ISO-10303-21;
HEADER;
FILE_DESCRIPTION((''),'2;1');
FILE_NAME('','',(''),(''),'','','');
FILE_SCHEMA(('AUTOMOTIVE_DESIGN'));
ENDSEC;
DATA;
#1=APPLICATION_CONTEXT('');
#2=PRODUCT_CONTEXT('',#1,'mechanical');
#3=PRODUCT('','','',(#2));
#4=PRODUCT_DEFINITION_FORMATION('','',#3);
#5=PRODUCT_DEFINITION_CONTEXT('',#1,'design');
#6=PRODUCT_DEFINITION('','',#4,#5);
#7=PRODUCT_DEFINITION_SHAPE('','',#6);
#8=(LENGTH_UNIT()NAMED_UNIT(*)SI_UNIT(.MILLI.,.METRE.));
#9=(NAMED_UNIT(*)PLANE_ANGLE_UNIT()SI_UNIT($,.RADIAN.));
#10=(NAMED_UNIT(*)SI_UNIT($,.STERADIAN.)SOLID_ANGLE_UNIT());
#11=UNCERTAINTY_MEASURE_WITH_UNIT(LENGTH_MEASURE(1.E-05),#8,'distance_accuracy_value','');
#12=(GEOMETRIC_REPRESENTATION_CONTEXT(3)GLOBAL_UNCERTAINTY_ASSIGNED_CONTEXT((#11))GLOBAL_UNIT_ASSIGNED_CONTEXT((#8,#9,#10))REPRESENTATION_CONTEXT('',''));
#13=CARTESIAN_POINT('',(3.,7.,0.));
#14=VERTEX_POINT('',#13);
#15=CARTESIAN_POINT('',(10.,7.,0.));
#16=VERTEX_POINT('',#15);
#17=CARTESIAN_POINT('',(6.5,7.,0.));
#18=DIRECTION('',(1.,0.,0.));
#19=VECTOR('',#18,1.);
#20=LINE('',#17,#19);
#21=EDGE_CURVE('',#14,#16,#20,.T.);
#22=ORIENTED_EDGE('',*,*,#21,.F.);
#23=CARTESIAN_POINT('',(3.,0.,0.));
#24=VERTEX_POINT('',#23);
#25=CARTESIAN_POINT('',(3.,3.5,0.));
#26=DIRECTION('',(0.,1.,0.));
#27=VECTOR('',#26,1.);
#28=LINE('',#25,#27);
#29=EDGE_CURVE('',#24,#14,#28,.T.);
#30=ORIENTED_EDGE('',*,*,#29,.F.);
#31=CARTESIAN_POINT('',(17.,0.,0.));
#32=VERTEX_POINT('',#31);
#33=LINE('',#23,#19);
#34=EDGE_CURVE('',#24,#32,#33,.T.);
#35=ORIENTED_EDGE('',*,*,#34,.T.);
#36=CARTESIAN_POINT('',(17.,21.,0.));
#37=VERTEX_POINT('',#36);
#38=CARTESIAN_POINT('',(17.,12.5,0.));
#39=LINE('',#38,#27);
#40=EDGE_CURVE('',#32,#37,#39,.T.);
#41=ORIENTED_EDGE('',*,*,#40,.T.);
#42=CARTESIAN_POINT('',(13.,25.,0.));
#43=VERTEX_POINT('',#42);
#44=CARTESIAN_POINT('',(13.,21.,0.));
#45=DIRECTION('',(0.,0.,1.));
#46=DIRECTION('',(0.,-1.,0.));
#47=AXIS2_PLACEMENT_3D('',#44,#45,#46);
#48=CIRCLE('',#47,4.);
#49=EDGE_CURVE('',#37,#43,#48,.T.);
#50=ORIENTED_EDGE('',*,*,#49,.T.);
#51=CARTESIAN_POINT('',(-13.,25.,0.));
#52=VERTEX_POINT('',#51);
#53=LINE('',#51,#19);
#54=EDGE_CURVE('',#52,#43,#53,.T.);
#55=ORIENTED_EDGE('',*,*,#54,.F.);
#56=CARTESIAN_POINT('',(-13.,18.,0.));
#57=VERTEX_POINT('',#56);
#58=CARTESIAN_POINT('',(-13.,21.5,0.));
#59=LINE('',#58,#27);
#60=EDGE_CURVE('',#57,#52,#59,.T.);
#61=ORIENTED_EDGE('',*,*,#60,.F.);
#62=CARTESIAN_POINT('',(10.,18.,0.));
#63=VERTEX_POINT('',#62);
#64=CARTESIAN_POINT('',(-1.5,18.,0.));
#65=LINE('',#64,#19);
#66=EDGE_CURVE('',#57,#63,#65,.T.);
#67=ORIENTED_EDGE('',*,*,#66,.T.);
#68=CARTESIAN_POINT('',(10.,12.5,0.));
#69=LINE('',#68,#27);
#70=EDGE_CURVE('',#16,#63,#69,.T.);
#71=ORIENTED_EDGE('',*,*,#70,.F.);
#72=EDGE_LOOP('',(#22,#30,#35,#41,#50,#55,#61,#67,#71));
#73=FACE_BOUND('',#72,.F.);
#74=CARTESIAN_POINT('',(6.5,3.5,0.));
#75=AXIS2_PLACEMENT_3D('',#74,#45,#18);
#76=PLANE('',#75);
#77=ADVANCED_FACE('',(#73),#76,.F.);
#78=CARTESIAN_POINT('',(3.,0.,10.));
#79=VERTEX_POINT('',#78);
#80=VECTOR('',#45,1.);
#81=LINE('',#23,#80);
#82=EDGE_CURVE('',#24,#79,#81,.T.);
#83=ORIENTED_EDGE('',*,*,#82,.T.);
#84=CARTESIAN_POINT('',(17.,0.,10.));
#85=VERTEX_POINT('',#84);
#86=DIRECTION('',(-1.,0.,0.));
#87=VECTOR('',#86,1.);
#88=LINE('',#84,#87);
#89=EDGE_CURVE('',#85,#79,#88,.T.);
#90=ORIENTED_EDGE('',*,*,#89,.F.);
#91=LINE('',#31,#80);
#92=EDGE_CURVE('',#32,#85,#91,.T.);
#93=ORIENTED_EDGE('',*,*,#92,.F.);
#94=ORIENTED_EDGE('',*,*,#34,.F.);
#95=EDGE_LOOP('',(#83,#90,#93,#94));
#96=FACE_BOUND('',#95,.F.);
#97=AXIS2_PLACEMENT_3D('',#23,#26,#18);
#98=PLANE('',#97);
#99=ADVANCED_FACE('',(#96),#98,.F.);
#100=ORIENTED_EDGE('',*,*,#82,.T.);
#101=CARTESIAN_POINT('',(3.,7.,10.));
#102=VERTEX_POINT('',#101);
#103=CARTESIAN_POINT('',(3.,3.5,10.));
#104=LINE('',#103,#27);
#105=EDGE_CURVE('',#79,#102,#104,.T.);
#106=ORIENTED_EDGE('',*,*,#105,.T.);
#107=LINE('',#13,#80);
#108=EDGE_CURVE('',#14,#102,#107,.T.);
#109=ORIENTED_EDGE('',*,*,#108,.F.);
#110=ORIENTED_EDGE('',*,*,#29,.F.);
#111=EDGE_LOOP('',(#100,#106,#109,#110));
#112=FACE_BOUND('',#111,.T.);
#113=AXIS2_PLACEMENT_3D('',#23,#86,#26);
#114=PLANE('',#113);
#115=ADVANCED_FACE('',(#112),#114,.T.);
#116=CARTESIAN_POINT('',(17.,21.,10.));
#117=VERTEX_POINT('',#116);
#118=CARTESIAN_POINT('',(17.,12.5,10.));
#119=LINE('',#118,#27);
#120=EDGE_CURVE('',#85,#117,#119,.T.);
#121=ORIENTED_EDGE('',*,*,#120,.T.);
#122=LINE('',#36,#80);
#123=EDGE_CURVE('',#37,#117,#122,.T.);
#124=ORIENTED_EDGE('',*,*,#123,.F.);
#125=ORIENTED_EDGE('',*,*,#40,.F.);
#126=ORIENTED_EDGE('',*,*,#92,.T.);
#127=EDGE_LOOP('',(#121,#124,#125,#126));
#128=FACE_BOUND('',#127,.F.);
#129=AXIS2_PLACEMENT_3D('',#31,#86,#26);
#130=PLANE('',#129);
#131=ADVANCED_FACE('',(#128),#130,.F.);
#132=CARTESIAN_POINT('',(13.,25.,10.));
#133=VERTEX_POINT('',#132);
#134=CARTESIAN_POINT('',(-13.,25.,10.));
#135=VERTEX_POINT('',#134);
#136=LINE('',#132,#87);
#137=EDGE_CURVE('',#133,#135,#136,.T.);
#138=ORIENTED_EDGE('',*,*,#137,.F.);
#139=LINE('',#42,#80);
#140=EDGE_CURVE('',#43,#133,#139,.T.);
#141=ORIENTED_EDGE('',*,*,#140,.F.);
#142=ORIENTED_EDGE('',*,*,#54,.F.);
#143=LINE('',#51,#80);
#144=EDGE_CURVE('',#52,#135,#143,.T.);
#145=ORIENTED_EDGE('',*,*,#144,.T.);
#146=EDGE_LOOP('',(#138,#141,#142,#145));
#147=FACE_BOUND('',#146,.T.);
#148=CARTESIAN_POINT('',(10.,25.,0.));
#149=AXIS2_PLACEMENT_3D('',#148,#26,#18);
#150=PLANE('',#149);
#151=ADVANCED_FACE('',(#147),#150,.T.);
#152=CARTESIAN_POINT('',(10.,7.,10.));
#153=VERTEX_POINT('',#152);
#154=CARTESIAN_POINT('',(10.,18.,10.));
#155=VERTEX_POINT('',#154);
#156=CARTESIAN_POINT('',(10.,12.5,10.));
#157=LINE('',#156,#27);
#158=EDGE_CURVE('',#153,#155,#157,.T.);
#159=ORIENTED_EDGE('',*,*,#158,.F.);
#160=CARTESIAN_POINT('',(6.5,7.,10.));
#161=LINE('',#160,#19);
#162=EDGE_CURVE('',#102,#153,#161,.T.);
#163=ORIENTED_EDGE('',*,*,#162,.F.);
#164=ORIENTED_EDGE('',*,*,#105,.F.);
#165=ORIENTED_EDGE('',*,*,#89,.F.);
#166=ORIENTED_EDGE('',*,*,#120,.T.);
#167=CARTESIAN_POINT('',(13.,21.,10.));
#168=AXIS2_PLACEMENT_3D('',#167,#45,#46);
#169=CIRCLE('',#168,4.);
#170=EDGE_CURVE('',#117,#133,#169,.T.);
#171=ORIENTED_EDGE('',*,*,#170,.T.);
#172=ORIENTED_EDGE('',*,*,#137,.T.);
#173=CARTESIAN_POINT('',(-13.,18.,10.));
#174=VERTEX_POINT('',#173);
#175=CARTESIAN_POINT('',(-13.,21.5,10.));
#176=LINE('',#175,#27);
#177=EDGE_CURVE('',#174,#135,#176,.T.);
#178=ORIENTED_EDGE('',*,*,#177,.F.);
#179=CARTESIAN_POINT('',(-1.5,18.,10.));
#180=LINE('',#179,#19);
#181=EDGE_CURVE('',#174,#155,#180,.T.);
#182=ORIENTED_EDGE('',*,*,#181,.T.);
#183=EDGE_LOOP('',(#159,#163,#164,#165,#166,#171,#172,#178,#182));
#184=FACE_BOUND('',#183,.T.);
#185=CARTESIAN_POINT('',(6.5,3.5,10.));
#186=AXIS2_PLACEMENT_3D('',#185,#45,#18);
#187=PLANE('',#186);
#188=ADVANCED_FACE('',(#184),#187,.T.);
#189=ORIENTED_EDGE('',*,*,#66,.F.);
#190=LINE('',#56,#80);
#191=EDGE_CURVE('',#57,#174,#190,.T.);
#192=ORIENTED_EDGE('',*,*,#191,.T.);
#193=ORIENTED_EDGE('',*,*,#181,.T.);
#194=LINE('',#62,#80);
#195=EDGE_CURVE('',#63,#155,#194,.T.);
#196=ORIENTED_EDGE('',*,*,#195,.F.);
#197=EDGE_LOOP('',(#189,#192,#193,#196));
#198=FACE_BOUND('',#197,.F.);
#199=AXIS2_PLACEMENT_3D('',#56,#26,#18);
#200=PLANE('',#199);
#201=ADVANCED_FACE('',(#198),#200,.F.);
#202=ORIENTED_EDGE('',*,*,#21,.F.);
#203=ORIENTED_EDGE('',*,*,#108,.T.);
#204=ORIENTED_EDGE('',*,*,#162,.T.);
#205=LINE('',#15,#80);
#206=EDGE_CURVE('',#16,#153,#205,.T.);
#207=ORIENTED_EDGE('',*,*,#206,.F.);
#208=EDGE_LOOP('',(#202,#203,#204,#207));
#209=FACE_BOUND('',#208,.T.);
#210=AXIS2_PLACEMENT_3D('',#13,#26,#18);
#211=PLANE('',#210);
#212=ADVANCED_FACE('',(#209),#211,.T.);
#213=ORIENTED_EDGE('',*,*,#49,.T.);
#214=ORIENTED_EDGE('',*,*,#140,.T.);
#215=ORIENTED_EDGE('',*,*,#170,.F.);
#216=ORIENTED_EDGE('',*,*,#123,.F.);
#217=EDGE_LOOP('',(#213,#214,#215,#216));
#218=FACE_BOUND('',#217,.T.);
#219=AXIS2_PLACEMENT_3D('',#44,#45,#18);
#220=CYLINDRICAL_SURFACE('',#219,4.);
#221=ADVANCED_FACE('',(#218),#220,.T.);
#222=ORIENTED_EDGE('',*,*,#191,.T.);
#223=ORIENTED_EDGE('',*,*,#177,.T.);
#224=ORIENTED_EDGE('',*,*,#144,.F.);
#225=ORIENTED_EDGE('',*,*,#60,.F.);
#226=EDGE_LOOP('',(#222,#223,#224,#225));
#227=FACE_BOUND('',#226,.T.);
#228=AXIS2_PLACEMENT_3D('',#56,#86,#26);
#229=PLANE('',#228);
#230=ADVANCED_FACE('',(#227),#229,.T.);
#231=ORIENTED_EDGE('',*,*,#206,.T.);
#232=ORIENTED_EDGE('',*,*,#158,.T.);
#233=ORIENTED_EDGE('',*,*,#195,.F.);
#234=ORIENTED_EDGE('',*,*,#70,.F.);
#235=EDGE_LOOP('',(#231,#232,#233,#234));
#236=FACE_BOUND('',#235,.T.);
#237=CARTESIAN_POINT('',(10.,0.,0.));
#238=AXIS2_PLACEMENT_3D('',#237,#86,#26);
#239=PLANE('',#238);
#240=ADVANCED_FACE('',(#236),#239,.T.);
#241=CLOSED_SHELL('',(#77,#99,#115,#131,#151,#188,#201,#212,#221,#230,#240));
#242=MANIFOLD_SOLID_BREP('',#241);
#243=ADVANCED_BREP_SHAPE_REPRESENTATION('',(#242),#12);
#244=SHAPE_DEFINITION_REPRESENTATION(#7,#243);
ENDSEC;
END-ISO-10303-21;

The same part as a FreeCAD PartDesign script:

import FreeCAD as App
import Part
import Sketcher
from FreeCAD import Vector
Q = App.Units.Quantity


def edges_at(feature, points):
    """Names of the edges that pass closest to the given points."""
    edges = feature.Shape.Edges
    near = lambda p: min(range(len(edges)), key=lambda i: edges[i].distToShape(Part.Vertex(*p))[0])
    return sorted({f"Edge{near(p) + 1}" for p in points})

doc = App.newDocument("Part")
body = doc.addObject("PartDesign::Body", "Body")

# Sketch on XY plane
sketch1 = doc.addObject("Sketcher::SketchObject", "Sketch")
body.addObject(sketch1)
sketch1.AttachmentSupport = (doc.XY_Plane, [""])
sketch1.MapMode = "FlatFace"
sketch1.addGeometry([
    Part.LineSegment(Vector(10, 25, 0), Vector(10, 0, 0)),
    Part.LineSegment(Vector(10, 0, 0), Vector(17, 0, 0)),
    Part.LineSegment(Vector(17, 0, 0), Vector(17, 25, 0)),
    Part.LineSegment(Vector(17, 25, 0), Vector(10, 25, 0)),
], False)
sketch1.addConstraint([
    Sketcher.Constraint("Coincident", 0, 2, 1, 1),
    Sketcher.Constraint("Coincident", 1, 2, 2, 1),
    Sketcher.Constraint("Coincident", 2, 2, 3, 1),
    Sketcher.Constraint("Coincident", 3, 2, 0, 1),
    Sketcher.Constraint("Vertical", 0),
    Sketcher.Constraint("Horizontal", 1),
    Sketcher.Constraint("Vertical", 2),
    Sketcher.Constraint("Horizontal", 3),
    Sketcher.Constraint("PointOnObject", 0, 2, -1),
    Sketcher.Constraint("DistanceX", 1, 1, 1, 2, Q("7 mm")),
    Sketcher.Constraint("DistanceY", 0, 2, 0, 1, Q("25 mm")),
    Sketcher.Constraint("DistanceX", -1, 1, 0, 2, Q("10 mm")),
])
pad1 = doc.addObject("PartDesign::Pad", "Pad")
body.addObject(pad1)
pad1.Profile = sketch1
pad1.Length = 10
doc.recompute()

fillet = doc.addObject("PartDesign::Fillet", "Fillet")
body.addObject(fillet)
fillet.Base = (pad1, edges_at(pad1, [(17, 25, 5)]))
fillet.Radius = 4
body2 = doc.addObject("PartDesign::Body", "Body001")

# Sketch on XY plane
sketch2 = doc.addObject("Sketcher::SketchObject", "Sketch001")
body2.addObject(sketch2)
sketch2.AttachmentSupport = (doc.getObject("XY_Plane001"), [""])
sketch2.MapMode = "FlatFace"
sketch2.addGeometry([
    Part.LineSegment(Vector(3, 7, 0), Vector(3, 0, 0)),
    Part.LineSegment(Vector(3, 0, 0), Vector(10, 0, 0)),
    Part.LineSegment(Vector(10, 0, 0), Vector(10, 7, 0)),
    Part.LineSegment(Vector(10, 7, 0), Vector(3, 7, 0)),
], False)
sketch2.addConstraint([
    Sketcher.Constraint("Coincident", 0, 2, 1, 1),
    Sketcher.Constraint("Coincident", 1, 2, 2, 1),
    Sketcher.Constraint("Coincident", 2, 2, 3, 1),
    Sketcher.Constraint("Coincident", 3, 2, 0, 1),
    Sketcher.Constraint("Vertical", 0),
    Sketcher.Constraint("Horizontal", 1),
    Sketcher.Constraint("Vertical", 2),
    Sketcher.Constraint("Horizontal", 3),
    Sketcher.Constraint("PointOnObject", 0, 2, -1),
    Sketcher.Constraint("Equal", 3, 0),
    Sketcher.Constraint("DistanceX", 1, 1, 1, 2, Q("7 mm")),
    Sketcher.Constraint("DistanceX", -1, 1, 0, 2, Q("3 mm")),
])
pad2 = doc.addObject("PartDesign::Pad", "Pad001")
body2.addObject(pad2)
pad2.Profile = sketch2
pad2.Length = 10
body3 = doc.addObject("PartDesign::Body", "Body002")

# Sketch on XY plane
sketch3 = doc.addObject("Sketcher::SketchObject", "Sketch002")
body3.addObject(sketch3)
sketch3.AttachmentSupport = (doc.getObject("XY_Plane002"), [""])
sketch3.MapMode = "FlatFace"
sketch3.addGeometry([
    Part.LineSegment(Vector(-13, 25, 0), Vector(-13, 18, 0)),
    Part.LineSegment(Vector(-13, 18, 0), Vector(10, 18, 0)),
    Part.LineSegment(Vector(10, 18, 0), Vector(10, 25, 0)),
    Part.LineSegment(Vector(10, 25, 0), Vector(-13, 25, 0)),
], False)
sketch3.addConstraint([
    Sketcher.Constraint("Coincident", 0, 2, 1, 1),
    Sketcher.Constraint("Coincident", 1, 2, 2, 1),
    Sketcher.Constraint("Coincident", 2, 2, 3, 1),
    Sketcher.Constraint("Coincident", 3, 2, 0, 1),
    Sketcher.Constraint("Vertical", 0),
    Sketcher.Constraint("Horizontal", 1),
    Sketcher.Constraint("Vertical", 2),
    Sketcher.Constraint("Horizontal", 3),
    Sketcher.Constraint("DistanceX", 1, 1, 1, 2, Q("23 mm")),
    Sketcher.Constraint("DistanceY", 0, 2, 0, 1, Q("7 mm")),
    Sketcher.Constraint("DistanceX", 0, 2, -1, 1, Q("13 mm")),
    Sketcher.Constraint("DistanceY", -1, 1, 0, 2, Q("18 mm")),
])
pad3 = doc.addObject("PartDesign::Pad", "Pad002")
body3.addObject(pad3)
pad3.Profile = sketch3
pad3.Length = 10
doc.recompute()

boolean = doc.addObject("PartDesign::Boolean", "Boolean")
body3.addObject(boolean)
boolean.Type = "Fuse"
boolean.addObjects([body])
doc.recompute()

boolean2 = doc.addObject("PartDesign::Boolean", "Boolean001")
body3.addObject(boolean2)
boolean2.Type = "Fuse"
boolean2.addObjects([body2])

doc.recompute()
